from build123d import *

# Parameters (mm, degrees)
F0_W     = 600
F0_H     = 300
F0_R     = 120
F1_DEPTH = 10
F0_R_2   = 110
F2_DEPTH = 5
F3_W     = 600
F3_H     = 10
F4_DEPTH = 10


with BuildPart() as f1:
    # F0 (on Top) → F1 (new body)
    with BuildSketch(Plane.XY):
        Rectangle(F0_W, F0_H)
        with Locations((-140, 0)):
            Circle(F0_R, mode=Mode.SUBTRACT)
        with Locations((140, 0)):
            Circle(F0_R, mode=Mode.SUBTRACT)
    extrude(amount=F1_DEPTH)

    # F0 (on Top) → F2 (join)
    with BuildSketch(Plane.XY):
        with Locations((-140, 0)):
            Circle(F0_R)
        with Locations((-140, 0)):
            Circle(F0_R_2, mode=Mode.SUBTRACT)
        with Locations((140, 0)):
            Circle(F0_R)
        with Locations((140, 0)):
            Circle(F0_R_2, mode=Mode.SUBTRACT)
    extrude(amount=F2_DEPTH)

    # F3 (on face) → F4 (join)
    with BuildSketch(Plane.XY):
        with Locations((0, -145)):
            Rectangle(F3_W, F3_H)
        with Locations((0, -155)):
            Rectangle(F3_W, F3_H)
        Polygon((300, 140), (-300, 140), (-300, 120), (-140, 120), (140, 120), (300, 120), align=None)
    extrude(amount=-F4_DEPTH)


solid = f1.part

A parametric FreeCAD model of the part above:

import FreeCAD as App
import Part
import Sketcher


def add_polygon(sketch, points):
    """Adds a closed chain of lines whose ends are joined by coincident constraints."""
    first, n = sketch.GeometryCount, len(points)
    for a, b in zip(points, points[1:] + points[:1]):
        sketch.addGeometry(Part.LineSegment(App.Vector(*a, 0), App.Vector(*b, 0)), False)
    for i in range(n):
        sketch.addConstraint(Sketcher.Constraint("Coincident", first + i, 2, first + (i + 1) % n, 1))

doc = App.newDocument("Part")
body = doc.addObject("PartDesign::Body", "Body")

sketch1 = body.newObject("Sketcher::SketchObject", "Sketch")
sketch1.AttachmentSupport = (doc.getObject("XY_Plane"), [""])
sketch1.MapMode = "FlatFace"
add_polygon(sketch1, [(-300, 150), (-300, -150), (300, -150), (300, 150)])
sketch1.addGeometry(Part.Circle(App.Vector(-140, 0, 0), App.Vector(0, 0, 1), 120), False)
sketch1.addGeometry(Part.Circle(App.Vector(140, 0, 0), App.Vector(0, 0, 1), 120), False)
sketch1.addConstraint(Sketcher.Constraint("Vertical", 0))
sketch1.addConstraint(Sketcher.Constraint("Horizontal", 1))
sketch1.addConstraint(Sketcher.Constraint("Vertical", 2))
sketch1.addConstraint(Sketcher.Constraint("Horizontal", 3))
sketch1.addConstraint(Sketcher.Constraint("Equal", 4, 5))
sketch1.addConstraint(Sketcher.Constraint("Symmetric", 4, 3, 5, 3, -1, 1))
sketch1.addConstraint(Sketcher.Constraint("Symmetric", 0, 2, 2, 2, -1, 1))
sketch1.addConstraint(Sketcher.Constraint("PointOnObject", 4, 3, -1))
sketch1.addConstraint(Sketcher.Constraint("Diameter", 4, 240.0))
sketch1.addConstraint(Sketcher.Constraint("DistanceX", 1, 1, 1, 2, 600.0))
sketch1.addConstraint(Sketcher.Constraint("DistanceY", 0, 2, 0, 1, 300.0))
sketch1.addConstraint(Sketcher.Constraint("DistanceX", 4, 3, -1, 1, 140.0))
pad1 = body.newObject("PartDesign::Pad", "Pad")
pad1.Profile = sketch1
pad1.Length = 10

sketch2 = body.newObject("Sketcher::SketchObject", "Sketch001")
sketch2.AttachmentSupport = (doc.getObject("XY_Plane"), [""])
sketch2.MapMode = "FlatFace"
sketch2.addGeometry(Part.Circle(App.Vector(-140, 0, 0), App.Vector(0, 0, 1), 120), False)
sketch2.addGeometry(Part.Circle(App.Vector(-140, 0, 0), App.Vector(0, 0, 1), 110), False)
sketch2.addGeometry(Part.Circle(App.Vector(140, 0, 0), App.Vector(0, 0, 1), 120), False)
sketch2.addGeometry(Part.Circle(App.Vector(140, 0, 0), App.Vector(0, 0, 1), 110), False)
sketch2.addConstraint(Sketcher.Constraint("Coincident", 1, 3, 0, 3))
sketch2.addConstraint(Sketcher.Constraint("Coincident", 3, 3, 2, 3))
sketch2.addConstraint(Sketcher.Constraint("Equal", 0, 2))
sketch2.addConstraint(Sketcher.Constraint("Equal", 1, 3))
sketch2.addConstraint(Sketcher.Constraint("Symmetric", 0, 3, 2, 3, -1, 1))
sketch2.addConstraint(Sketcher.Constraint("PointOnObject", 0, 3, -1))
sketch2.addConstraint(Sketcher.Constraint("Diameter", 0, 240.0))
sketch2.addConstraint(Sketcher.Constraint("Diameter", 1, 220.0))
sketch2.addConstraint(Sketcher.Constraint("DistanceX", 0, 3, -1, 1, 140.0))
pad2 = body.newObject("PartDesign::Pad", "Pad001")
pad2.Profile = sketch2
pad2.Length = 5

sketch3 = body.newObject("Sketcher::SketchObject", "Sketch002")
sketch3.AttachmentSupport = (doc.getObject("XY_Plane"), [""])
sketch3.MapMode = "FlatFace"
add_polygon(sketch3, [(-300, -140), (-300, -160), (300, -160), (300, -140)])
add_polygon(sketch3, [(300, 140), (-300, 140), (-300, 120), (300, 120)])
sketch3.addConstraint(Sketcher.Constraint("Vertical", 0))
sketch3.addConstraint(Sketcher.Constraint("Horizontal", 1))
sketch3.addConstraint(Sketcher.Constraint("Vertical", 2))
sketch3.addConstraint(Sketcher.Constraint("Horizontal", 3))
sketch3.addConstraint(Sketcher.Constraint("Horizontal", 4))
sketch3.addConstraint(Sketcher.Constraint("Vertical", 5))
sketch3.addConstraint(Sketcher.Constraint("Horizontal", 6))
sketch3.addConstraint(Sketcher.Constraint("Vertical", 7))
sketch3.addConstraint(Sketcher.Constraint("Symmetric", 2, 2, 4, 2, -1, 1))
sketch3.addConstraint(Sketcher.Constraint("Vertical", 3, 2, 4, 2))
sketch3.addConstraint(Sketcher.Constraint("Vertical", 2, 2, 6, 2))
sketch3.addConstraint(Sketcher.Constraint("Equal", 2, 5))
sketch3.addConstraint(Sketcher.Constraint("DistanceX", 1, 1, 1, 2, 600.0))
sketch3.addConstraint(Sketcher.Constraint("DistanceY", 0, 2, 0, 1, 20.0))
sketch3.addConstraint(Sketcher.Constraint("DistanceY", 0, 2, -1, 1, 160.0))
pad3 = body.newObject("PartDesign::Pad", "Pad002")
pad3.Profile = sketch3
pad3.Length = 10
pad3.Reversed = True

doc.recompute()
